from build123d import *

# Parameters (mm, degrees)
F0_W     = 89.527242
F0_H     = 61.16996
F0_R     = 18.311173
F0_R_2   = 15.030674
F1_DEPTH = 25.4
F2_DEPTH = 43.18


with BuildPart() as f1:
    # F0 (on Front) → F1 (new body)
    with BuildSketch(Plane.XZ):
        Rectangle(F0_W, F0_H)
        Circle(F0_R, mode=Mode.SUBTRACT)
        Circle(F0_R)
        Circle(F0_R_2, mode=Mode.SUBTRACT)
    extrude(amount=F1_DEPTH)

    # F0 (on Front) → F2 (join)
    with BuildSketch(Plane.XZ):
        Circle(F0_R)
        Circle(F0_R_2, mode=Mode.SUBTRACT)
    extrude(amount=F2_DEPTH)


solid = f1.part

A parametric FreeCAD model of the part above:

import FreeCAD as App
import Part
import Sketcher
from FreeCAD import Vector
Q = App.Units.Quantity


def add_polygon(sketch, points):
    """Adds a closed chain of lines whose ends are joined by coincident constraints."""
    first, n = sketch.GeometryCount, len(points)
    for a, b in zip(points, points[1:] + points[:1]):
        sketch.addGeometry(Part.LineSegment(App.Vector(*a, 0), App.Vector(*b, 0)), False)
    for i in range(n):
        sketch.addConstraint(Sketcher.Constraint("Coincident", first + i, 2, first + (i + 1) % n, 1))

doc = App.newDocument("Part")
body = doc.addObject("PartDesign::Body", "Body")

# Sketch on XZ plane
sketch1 = body.newObject("Sketcher::SketchObject", "Sketch")
sketch1.AttachmentSupport = (doc.getObject("XZ_Plane"), [""])
sketch1.MapMode = "FlatFace"
add_polygon(sketch1, [(-45, 31), (-45, -31), (45, -31), (45, 31)])  # lines 0-3
sketch1.addGeometry(Part.Circle(Vector(0, 0, 0), Vector(0, 0, 1), 15), False)  # 4
sketch1.addConstraint(Sketcher.Constraint("Vertical", 0))
sketch1.addConstraint(Sketcher.Constraint("Horizontal", 1))
sketch1.addConstraint(Sketcher.Constraint("Vertical", 2))
sketch1.addConstraint(Sketcher.Constraint("Horizontal", 3))
sketch1.addConstraint(Sketcher.Constraint("Coincident", 4, 3, -1, 1))
sketch1.addConstraint(Sketcher.Constraint("Symmetric", 0, 2, 2, 2, -1, 1))
sketch1.addConstraint(Sketcher.Constraint("Diameter", 4, 30.061348))
sketch1.addConstraint(Sketcher.Constraint("DistanceX", 1, 1, 1, 2, 89.527242))
sketch1.addConstraint(Sketcher.Constraint("DistanceY", 0, 2, 0, 1, 61.16996))
pad1 = body.newObject("PartDesign::Pad", "Pad")
pad1.Profile = sketch1
pad1.Length = Q("1 in")

# Sketch on XZ plane
sketch2 = body.newObject("Sketcher::SketchObject", "Sketch001")
sketch2.AttachmentSupport = (doc.getObject("XZ_Plane"), [""])
sketch2.MapMode = "FlatFace"
sketch2.addGeometry(Part.Circle(Vector(0, 0, 0), Vector(0, 0, 1), 18), False)
sketch2.addGeometry(Part.Circle(Vector(0, 0, 0), Vector(0, 0, 1), 15), False)
sketch2.addConstraint(Sketcher.Constraint("Coincident", 0, 3, -1, 1))
sketch2.addConstraint(Sketcher.Constraint("Coincident", 1, 3, -1, 1))
sketch2.addConstraint(Sketcher.Constraint("Diameter", 0, 36.622346))
sketch2.addConstraint(Sketcher.Constraint("Diameter", 1, 30.061348))
pad2 = body.newObject("PartDesign::Pad", "Pad001")
pad2.Profile = sketch2
pad2.Length = Q("1.7 in")

doc.recompute()
